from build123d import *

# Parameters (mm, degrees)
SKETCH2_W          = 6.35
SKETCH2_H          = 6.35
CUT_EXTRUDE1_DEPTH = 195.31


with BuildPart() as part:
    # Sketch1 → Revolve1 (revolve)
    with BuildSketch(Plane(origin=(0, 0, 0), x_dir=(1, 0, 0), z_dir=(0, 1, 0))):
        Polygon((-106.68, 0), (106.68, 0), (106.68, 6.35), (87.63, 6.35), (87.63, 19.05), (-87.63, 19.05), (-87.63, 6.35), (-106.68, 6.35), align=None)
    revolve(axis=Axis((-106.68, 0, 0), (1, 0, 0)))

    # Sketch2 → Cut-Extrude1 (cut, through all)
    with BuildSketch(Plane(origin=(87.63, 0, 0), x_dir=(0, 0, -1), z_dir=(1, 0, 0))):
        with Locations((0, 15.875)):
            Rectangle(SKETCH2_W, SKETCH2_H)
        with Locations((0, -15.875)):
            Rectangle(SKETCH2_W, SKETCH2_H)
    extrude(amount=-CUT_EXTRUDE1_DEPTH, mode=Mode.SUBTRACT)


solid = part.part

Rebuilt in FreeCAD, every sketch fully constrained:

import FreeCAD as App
import Part
import Sketcher
from FreeCAD import Vector
Q = App.Units.Quantity

doc = App.newDocument("Part")
body = doc.addObject("PartDesign::Body", "Body")

# Sketch on XZ plane
sketch1 = body.newObject("Sketcher::SketchObject", "Sketch")
sketch1.AttachmentSupport = (doc.getObject("XZ_Plane"), [""])
sketch1.MapMode = "FlatFace"
sketch1.addGeometry([
    Part.LineSegment(Vector(-107, 0, 0), Vector(107, 0, 0)),  # 0
    Part.LineSegment(Vector(107, 0, 0), Vector(107, -6, 0)),  # 1
    Part.LineSegment(Vector(107, -6, 0), Vector(88, -6, 0)),  # 2
    Part.LineSegment(Vector(88, -6, 0), Vector(88, -19, 0)),  # 3
    Part.LineSegment(Vector(88, -19, 0), Vector(-88, -19, 0)),  # 4
    Part.LineSegment(Vector(-88, -19, 0), Vector(-88, -6, 0)),  # 5
    Part.LineSegment(Vector(-88, -6, 0), Vector(-107, -6, 0)),  # 6
    Part.LineSegment(Vector(-107, -6, 0), Vector(-107, 0, 0)),  # 7
], False)
sketch1.addConstraint([
    Sketcher.Constraint("Coincident", 0, 2, 1, 1),
    Sketcher.Constraint("Coincident", 1, 2, 2, 1),
    Sketcher.Constraint("Coincident", 2, 2, 3, 1),
    Sketcher.Constraint("Coincident", 3, 2, 4, 1),
    Sketcher.Constraint("Coincident", 4, 2, 5, 1),
    Sketcher.Constraint("Coincident", 5, 2, 6, 1),
    Sketcher.Constraint("Coincident", 6, 2, 7, 1),
    Sketcher.Constraint("Coincident", 7, 2, 0, 1),
    Sketcher.Constraint("Horizontal", 0),
    Sketcher.Constraint("Vertical", 1),
    Sketcher.Constraint("Horizontal", 2),
    Sketcher.Constraint("Vertical", 3),
    Sketcher.Constraint("Horizontal", 4),
    Sketcher.Constraint("Vertical", 5),
    Sketcher.Constraint("Horizontal", 6),
    Sketcher.Constraint("Vertical", 7),
    Sketcher.Constraint("Symmetric", 0, 2, 7, 2, -1, 1),
    Sketcher.Constraint("Symmetric", 2, 2, 5, 2, -2),
    Sketcher.Constraint("DistanceX", 0, 1, 0, 2, Q("8.4 in")),
    Sketcher.Constraint("DistanceX", 4, 2, 4, 1, Q("6.9 in")),
    Sketcher.Constraint("DistanceY", 3, 2, 3, 1, Q("0.5 in")),
    Sketcher.Constraint("DistanceY", 1, 2, 1, 1, Q("0.25 in")),
])
revolution = body.newObject("PartDesign::Revolution", "Revolution")
revolution.Profile = sketch1
revolution.ReferenceAxis = (sketch1, ["H_Axis"])
revolution.Angle = 360

# Sketch on YZ plane
sketch2 = body.newObject("Sketcher::SketchObject", "Sketch001")
sketch2.AttachmentSupport = (doc.getObject("YZ_Plane"), [""])
sketch2.MapMode = "FlatFace"
sketch2.AttachmentOffset = App.Placement(Vector(0, 0, 3.45 * 25.4), App.Rotation())
sketch2.addGeometry([
    Part.LineSegment(Vector(19, 3, 0), Vector(13, 3, 0)),  # 0
    Part.LineSegment(Vector(13, 3, 0), Vector(13, -3, 0)),  # 1
    Part.LineSegment(Vector(13, -3, 0), Vector(19, -3, 0)),  # 2
    Part.LineSegment(Vector(19, -3, 0), Vector(19, 3, 0)),  # 3
    Part.LineSegment(Vector(-13, 3, 0), Vector(-19, 3, 0)),  # 4
    Part.LineSegment(Vector(-19, 3, 0), Vector(-19, -3, 0)),  # 5
    Part.LineSegment(Vector(-19, -3, 0), Vector(-13, -3, 0)),  # 6
    Part.LineSegment(Vector(-13, -3, 0), Vector(-13, 3, 0)),  # 7
], False)
sketch2.addConstraint([
    Sketcher.Constraint("Coincident", 0, 2, 1, 1),
    Sketcher.Constraint("Coincident", 1, 2, 2, 1),
    Sketcher.Constraint("Coincident", 2, 2, 3, 1),
    Sketcher.Constraint("Coincident", 3, 2, 0, 1),
    Sketcher.Constraint("Coincident", 4, 2, 5, 1),
    Sketcher.Constraint("Coincident", 5, 2, 6, 1),
    Sketcher.Constraint("Coincident", 6, 2, 7, 1),
    Sketcher.Constraint("Coincident", 7, 2, 4, 1),
    Sketcher.Constraint("Horizontal", 0),
    Sketcher.Constraint("Vertical", 1),
    Sketcher.Constraint("Horizontal", 2),
    Sketcher.Constraint("Vertical", 3),
    Sketcher.Constraint("Horizontal", 4),
    Sketcher.Constraint("Vertical", 5),
    Sketcher.Constraint("Horizontal", 6),
    Sketcher.Constraint("Vertical", 7),
    Sketcher.Constraint("Symmetric", 2, 2, 4, 2, -1, 1),
    Sketcher.Constraint("Symmetric", 0, 2, 6, 2, -1, 1),
    Sketcher.Constraint("Horizontal", 3, 2, 4, 2),
    Sketcher.Constraint("Equal", 6, 1),
    Sketcher.Constraint("DistanceX", 6, 2, 1, 2, Q("1 in")),
    Sketcher.Constraint("DistanceX", 0, 2, 0, 1, Q("0.25 in")),
])
pocket1 = body.newObject("PartDesign::Pocket", "Pocket")
pocket1.Profile = sketch2
pocket1.Type = "ThroughAll"

doc.recompute()
